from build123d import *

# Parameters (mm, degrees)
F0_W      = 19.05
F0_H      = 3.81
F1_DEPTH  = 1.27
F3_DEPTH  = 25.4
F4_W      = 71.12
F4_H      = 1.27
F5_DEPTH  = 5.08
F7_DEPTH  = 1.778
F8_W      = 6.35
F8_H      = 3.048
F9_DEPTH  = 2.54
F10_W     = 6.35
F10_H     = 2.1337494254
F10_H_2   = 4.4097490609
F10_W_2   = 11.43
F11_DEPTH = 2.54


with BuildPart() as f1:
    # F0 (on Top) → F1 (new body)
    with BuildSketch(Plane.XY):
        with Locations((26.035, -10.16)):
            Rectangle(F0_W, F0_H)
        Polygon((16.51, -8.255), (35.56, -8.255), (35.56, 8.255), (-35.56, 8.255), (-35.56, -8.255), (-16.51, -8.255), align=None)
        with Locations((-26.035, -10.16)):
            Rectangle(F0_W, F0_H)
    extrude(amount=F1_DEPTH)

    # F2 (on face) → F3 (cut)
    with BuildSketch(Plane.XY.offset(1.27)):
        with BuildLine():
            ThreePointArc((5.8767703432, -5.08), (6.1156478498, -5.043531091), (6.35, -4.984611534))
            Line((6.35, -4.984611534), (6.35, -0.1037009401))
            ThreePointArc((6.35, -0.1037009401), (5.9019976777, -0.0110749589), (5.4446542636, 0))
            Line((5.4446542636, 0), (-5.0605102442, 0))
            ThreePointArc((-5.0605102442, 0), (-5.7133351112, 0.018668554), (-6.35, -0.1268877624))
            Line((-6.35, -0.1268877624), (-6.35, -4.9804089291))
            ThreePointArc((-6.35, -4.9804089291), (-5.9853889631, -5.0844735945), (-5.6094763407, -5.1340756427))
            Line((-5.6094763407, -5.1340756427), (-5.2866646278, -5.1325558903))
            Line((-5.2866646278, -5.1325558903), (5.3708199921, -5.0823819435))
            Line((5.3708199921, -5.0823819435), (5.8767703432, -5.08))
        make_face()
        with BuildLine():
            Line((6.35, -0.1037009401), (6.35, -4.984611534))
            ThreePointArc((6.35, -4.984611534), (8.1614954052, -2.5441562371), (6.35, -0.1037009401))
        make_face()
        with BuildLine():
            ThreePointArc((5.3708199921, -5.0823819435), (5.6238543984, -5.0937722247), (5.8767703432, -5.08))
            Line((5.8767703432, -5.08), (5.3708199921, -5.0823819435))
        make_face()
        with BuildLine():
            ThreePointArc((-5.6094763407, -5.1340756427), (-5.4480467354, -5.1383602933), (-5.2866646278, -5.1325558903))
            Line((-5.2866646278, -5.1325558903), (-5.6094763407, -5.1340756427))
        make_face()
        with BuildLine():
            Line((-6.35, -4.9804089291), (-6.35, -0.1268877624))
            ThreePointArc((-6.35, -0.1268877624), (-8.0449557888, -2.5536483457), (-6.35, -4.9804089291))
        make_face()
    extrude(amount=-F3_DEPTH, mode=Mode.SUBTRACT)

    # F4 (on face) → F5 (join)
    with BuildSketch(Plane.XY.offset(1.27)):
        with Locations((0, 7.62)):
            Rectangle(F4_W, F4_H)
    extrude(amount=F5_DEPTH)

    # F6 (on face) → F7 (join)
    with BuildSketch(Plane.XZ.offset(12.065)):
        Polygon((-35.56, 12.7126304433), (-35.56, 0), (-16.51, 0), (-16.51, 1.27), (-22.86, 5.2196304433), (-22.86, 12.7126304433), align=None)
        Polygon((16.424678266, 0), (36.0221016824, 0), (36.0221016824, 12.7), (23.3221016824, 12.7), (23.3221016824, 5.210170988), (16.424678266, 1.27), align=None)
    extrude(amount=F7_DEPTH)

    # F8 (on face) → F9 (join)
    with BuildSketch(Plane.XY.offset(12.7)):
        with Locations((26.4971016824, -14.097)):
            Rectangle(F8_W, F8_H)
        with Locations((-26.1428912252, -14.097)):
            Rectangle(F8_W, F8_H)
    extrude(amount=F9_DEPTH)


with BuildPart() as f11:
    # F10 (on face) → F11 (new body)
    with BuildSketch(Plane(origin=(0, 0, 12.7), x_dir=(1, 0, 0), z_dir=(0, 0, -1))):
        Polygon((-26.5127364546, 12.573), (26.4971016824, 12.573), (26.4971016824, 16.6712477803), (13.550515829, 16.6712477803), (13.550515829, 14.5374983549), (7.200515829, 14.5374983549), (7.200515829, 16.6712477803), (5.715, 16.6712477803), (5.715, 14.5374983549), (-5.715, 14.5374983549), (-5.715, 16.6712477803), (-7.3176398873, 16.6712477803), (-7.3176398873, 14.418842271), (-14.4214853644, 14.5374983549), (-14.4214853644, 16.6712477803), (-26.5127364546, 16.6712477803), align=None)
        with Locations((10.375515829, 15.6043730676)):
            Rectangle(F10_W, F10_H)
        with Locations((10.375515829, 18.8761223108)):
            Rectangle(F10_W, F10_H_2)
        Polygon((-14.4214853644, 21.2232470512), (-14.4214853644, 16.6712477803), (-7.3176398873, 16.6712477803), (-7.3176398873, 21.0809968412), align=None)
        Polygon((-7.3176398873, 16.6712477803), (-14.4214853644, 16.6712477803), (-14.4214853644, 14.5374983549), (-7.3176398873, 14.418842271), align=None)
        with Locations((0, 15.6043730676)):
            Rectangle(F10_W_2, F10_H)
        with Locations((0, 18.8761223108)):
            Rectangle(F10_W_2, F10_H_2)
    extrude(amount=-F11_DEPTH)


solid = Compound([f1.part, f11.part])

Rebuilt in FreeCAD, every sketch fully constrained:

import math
import FreeCAD as App
import Part
import Sketcher
from FreeCAD import Vector
Q = App.Units.Quantity


def add_polygon(sketch, points):
    """Adds a closed chain of lines whose ends are joined by coincident constraints."""
    first, n = sketch.GeometryCount, len(points)
    for a, b in zip(points, points[1:] + points[:1]):
        sketch.addGeometry(Part.LineSegment(App.Vector(*a, 0), App.Vector(*b, 0)), False)
    for i in range(n):
        sketch.addConstraint(Sketcher.Constraint("Coincident", first + i, 2, first + (i + 1) % n, 1))

doc = App.newDocument("Part")
body = doc.addObject("PartDesign::Body", "Body")

sketch1 = body.newObject("Sketcher::SketchObject", "Sketch")
sketch1.AttachmentSupport = (doc.getObject("XY_Plane"), [""])
sketch1.MapMode = "FlatFace"
add_polygon(sketch1, [(16.5, -8.3), (16.5, -12.1), (35.6, -12.1), (35.6, 8.3), (-35.6, 8.3), (-35.6, -12.1), (-16.5, -12.1), (-16.5, -8.3)])
sketch1.addConstraint(Sketcher.Constraint("Vertical", 0))
sketch1.addConstraint(Sketcher.Constraint("Horizontal", 1))
sketch1.addConstraint(Sketcher.Constraint("Vertical", 2))
sketch1.addConstraint(Sketcher.Constraint("Horizontal", 3))
sketch1.addConstraint(Sketcher.Constraint("Vertical", 4))
sketch1.addConstraint(Sketcher.Constraint("Horizontal", 5))
sketch1.addConstraint(Sketcher.Constraint("Vertical", 6))
sketch1.addConstraint(Sketcher.Constraint("Horizontal", 7))
sketch1.addConstraint(Sketcher.Constraint("Symmetric", 1, 2, 4, 2, -2))
sketch1.addConstraint(Sketcher.Constraint("Equal", 1, 5))
sketch1.addConstraint(Sketcher.Constraint("DistanceX", 3, 2, 3, 1, Q("2.8 in")))
sketch1.addConstraint(Sketcher.Constraint("DistanceX", 7, 1, 7, 2, Q("1.3 in")))
sketch1.addConstraint(Sketcher.Constraint("DistanceY", 2, 1, 2, 2, Q("0.8 in")))
sketch1.addConstraint(Sketcher.Constraint("DistanceY", 0, 2, 0, 1, Q("0.15 in")))
sketch1.addConstraint(Sketcher.Constraint("DistanceY", 0, 2, -1, 1, Q("0.475 in")))
pad1 = body.newObject("PartDesign::Pad", "Pad")
pad1.Profile = sketch1
pad1.Length = Q("0.05 in")

sketch2 = body.newObject("Sketcher::SketchObject", "Sketch001")
sketch2.AttachmentSupport = (doc.getObject("XY_Plane"), [""])
sketch2.MapMode = "FlatFace"
sketch2.AttachmentOffset = App.Placement(Vector(0, 0, 0.05 * 25.4), App.Rotation())
sketch2.addGeometry(Part.ArcOfCircle(Part.Circle(Vector(5.61, -2.54, 0), Vector(0, 0, 1), 2.55), math.radians(-84.04), math.radians(-73.17)), False)
sketch2.addGeometry(Part.ArcOfCircle(Part.Circle(Vector(5.61, -2.54, 0), Vector(0, 0, 1), 2.55), math.radians(-73), math.radians(73)), False)
sketch2.addGeometry(Part.ArcOfCircle(Part.Circle(Vector(5.61, -2.54, 0), Vector(0, 0, 1), 2.55), math.radians(73), math.radians(94)), False)
sketch2.addGeometry(Part.LineSegment(Vector(5.44, 0, 0), Vector(-5.06, 0, 0)), False)
sketch2.addGeometry(Part.ArcOfCircle(Part.Circle(Vector(-5.46, -2.55, 0), Vector(0, 0, 1), 2.58), math.radians(81), math.radians(110)), False)
sketch2.addGeometry(Part.ArcOfCircle(Part.Circle(Vector(-5.46, -2.55, 0), Vector(0, 0, 1), 2.58), math.radians(110), math.radians(250)), False)
sketch2.addGeometry(Part.ArcOfCircle(Part.Circle(Vector(-5.46, -2.55, 0), Vector(0, 0, 1), 2.58), math.radians(-110.14), math.radians(-93.31)), False)
sketch2.addGeometry(Part.ArcOfCircle(Part.Circle(Vector(-5.46, -2.55, 0), Vector(0, 0, 1), 2.58), math.radians(-93.31), math.radians(-86.15)), False)
sketch2.addGeometry(Part.LineSegment(Vector(-5.29, -5.13, 0), Vector(5.37, -5.08, 0)), False)
sketch2.addGeometry(Part.ArcOfCircle(Part.Circle(Vector(5.61, -2.54, 0), Vector(0, 0, 1), 2.55), math.radians(-95.42), math.radians(-84.04)), False)
sketch2.addConstraint(Sketcher.Constraint("Tangent", 0, 2, 1, 1))
sketch2.addConstraint(Sketcher.Constraint("Tangent", 1, 2, 2, 1))
sketch2.addConstraint(Sketcher.Constraint("Coincident", 2, 2, 3, 1))
sketch2.addConstraint(Sketcher.Constraint("Coincident", 3, 2, 4, 1))
sketch2.addConstraint(Sketcher.Constraint("Tangent", 4, 2, 5, 1))
sketch2.addConstraint(Sketcher.Constraint("Tangent", 5, 2, 6, 1))
sketch2.addConstraint(Sketcher.Constraint("Tangent", 6, 2, 7, 1))
sketch2.addConstraint(Sketcher.Constraint("Coincident", 7, 2, 8, 1))
sketch2.addConstraint(Sketcher.Constraint("Coincident", 8, 2, 9, 1))
sketch2.addConstraint(Sketcher.Constraint("Tangent", 9, 2, 0, 1))
sketch2.addConstraint(Sketcher.Constraint("Horizontal", 3))
sketch2.addConstraint(Sketcher.Constraint("Coincident", 2, 3, 0, 3))
sketch2.addConstraint(Sketcher.Constraint("Coincident", 6, 3, 4, 3))
sketch2.addConstraint(Sketcher.Constraint("Equal", 6, 7))
sketch2.addConstraint(Sketcher.Constraint("Equal", 2, 9))
sketch2.addConstraint(Sketcher.Constraint("PointOnObject", 2, 2, -1))
sketch2.addConstraint(Sketcher.Constraint("Vertical", 0, 2, 1, 2))
sketch2.addConstraint(Sketcher.Constraint("Vertical", 4, 2, 5, 2))
sketch2.addConstraint(Sketcher.Constraint("DistanceY", 9, 2, -1, 1, Q("0.2 in")))
sketch2.addConstraint(Sketcher.Constraint("DistanceX", -1, 1, 0, 2, Q("0.25 in")))
sketch2.addConstraint(Sketcher.Constraint("DistanceX", 4, 2, -1, 1, Q("0.25 in")))
sketch2.addConstraint(Sketcher.Constraint("Radius", 4, Q("2.584741 mm")))
sketch2.addConstraint(Sketcher.Constraint("Radius", 0, Q("2.549644 mm")))
sketch2.addConstraint(Sketcher.Constraint("DistanceY", 1, 2, -1, 1, Q("0.103701 mm")))
sketch2.addConstraint(Sketcher.Constraint("DistanceX", 3, 2, 3, 1, Q("10.505165 mm")))
sketch2.addConstraint(Sketcher.Constraint("DistanceX", -1, 1, 0, 3, Q("5.611851 mm")))
sketch2.addConstraint(Sketcher.Constraint("DistanceY", 4, 3, -1, 1, Q("2.553648 mm")))
sketch2.addConstraint(Sketcher.Constraint("DistanceX", -1, 1, 8, 2, Q("5.37082 mm")))
sketch2.addConstraint(Sketcher.Constraint("DistanceX", 6, 2, 6, 3, Q("0.149261 mm")))
sketch2.addConstraint(Sketcher.Constraint("DistanceX", 6, 2, 7, 2, Q("0.322812 mm")))
pocket1 = body.newObject("PartDesign::Pocket", "Pocket")
pocket1.Profile = sketch2
pocket1.Length = Q("1 in")

sketch3 = body.newObject("Sketcher::SketchObject", "Sketch002")
sketch3.AttachmentSupport = (doc.getObject("XY_Plane"), [""])
sketch3.MapMode = "FlatFace"
sketch3.AttachmentOffset = App.Placement(Vector(0, 0, 0.05 * 25.4), App.Rotation())
add_polygon(sketch3, [(-35.6, 8.3), (-35.6, 7), (35.6, 7), (35.6, 8.3)])
sketch3.addConstraint(Sketcher.Constraint("Vertical", 0))
sketch3.addConstraint(Sketcher.Constraint("Horizontal", 1))
sketch3.addConstraint(Sketcher.Constraint("Vertical", 2))
sketch3.addConstraint(Sketcher.Constraint("Horizontal", 3))
sketch3.addConstraint(Sketcher.Constraint("DistanceX", 1, 1, 1, 2, Q("2.8 in")))
sketch3.addConstraint(Sketcher.Constraint("DistanceY", 0, 2, 0, 1, Q("0.05 in")))
sketch3.addConstraint(Sketcher.Constraint("DistanceX", 0, 2, -1, 1, Q("1.4 in")))
sketch3.addConstraint(Sketcher.Constraint("DistanceY", -1, 1, 0, 2, Q("0.275 in")))
pad2 = body.newObject("PartDesign::Pad", "Pad001")
pad2.Profile = sketch3
pad2.Length = Q("0.2 in")

sketch4 = body.newObject("Sketcher::SketchObject", "Sketch003")
sketch4.AttachmentSupport = (doc.getObject("XZ_Plane"), [""])
sketch4.MapMode = "FlatFace"
sketch4.AttachmentOffset = App.Placement(Vector(0, 0, 0.475 * 25.4), App.Rotation())
add_polygon(sketch4, [(-35.6, 12.7), (-35.6, 0), (-16.5, 0), (-16.5, 1.3), (-22.9, 5.2), (-22.9, 12.7)])
add_polygon(sketch4, [(16.4, 0), (36, 0), (36, 12.7), (23.3, 12.7), (23.3, 5.2), (16.4, 1.3)])
sketch4.addConstraint(Sketcher.Constraint("Vertical", 0))
sketch4.addConstraint(Sketcher.Constraint("Horizontal", 1))
sketch4.addConstraint(Sketcher.Constraint("Vertical", 2))
sketch4.addConstraint(Sketcher.Constraint("Vertical", 4))
sketch4.addConstraint(Sketcher.Constraint("Horizontal", 5))
sketch4.addConstraint(Sketcher.Constraint("Horizontal", 6))
sketch4.addConstraint(Sketcher.Constraint("Vertical", 7))
sketch4.addConstraint(Sketcher.Constraint("Horizontal", 8))
sketch4.addConstraint(Sketcher.Constraint("Vertical", 9))
sketch4.addConstraint(Sketcher.Constraint("Vertical", 11))
sketch4.addConstraint(Sketcher.Constraint("PointOnObject", 0, 2, -1))
sketch4.addConstraint(Sketcher.Constraint("PointOnObject", 6, 2, -1))
sketch4.addConstraint(Sketcher.Constraint("Horizontal", 2, 2, 10, 2))
sketch4.addConstraint(Sketcher.Constraint("Equal", 5, 8))
sketch4.addConstraint(Sketcher.Constraint("Equal", 8, 7))
sketch4.addConstraint(Sketcher.Constraint("DistanceX", 5, 2, 5, 1, Q("0.5 in")))
sketch4.addConstraint(Sketcher.Constraint("DistanceX", 1, 1, 1, 2, Q("0.75 in")))
sketch4.addConstraint(Sketcher.Constraint("DistanceY", 2, 1, 2, 2, Q("0.05 in")))
sketch4.addConstraint(Sketcher.Constraint("DistanceX", 0, 2, -1, 1, Q("1.4 in")))
sketch4.addConstraint(Sketcher.Constraint("DistanceY", 4, 1, 4, 2, Q("0.295 in")))
sketch4.addConstraint(Sketcher.Constraint("DistanceY", 0, 2, 0, 1, Q("12.71263 mm")))
sketch4.addConstraint(Sketcher.Constraint("DistanceY", 9, 2, 9, 1, Q("7.489829 mm")))
sketch4.addConstraint(Sketcher.Constraint("DistanceX", -1, 1, 6, 2, Q("36.022102 mm")))
sketch4.addConstraint(Sketcher.Constraint("DistanceX", 6, 1, 6, 2, Q("19.597423 mm")))
pad3 = body.newObject("PartDesign::Pad", "Pad002")
pad3.Profile = sketch4
pad3.Length = Q("0.07 in")

sketch5 = body.newObject("Sketcher::SketchObject", "Sketch004")
sketch5.AttachmentSupport = (doc.getObject("XY_Plane"), [""])
sketch5.MapMode = "FlatFace"
sketch5.AttachmentOffset = App.Placement(Vector(0, 0, 0.5 * 25.4), App.Rotation())
add_polygon(sketch5, [(23.3, -12.6), (23.3, -15.6), (29.7, -15.6), (29.7, -12.6)])
add_polygon(sketch5, [(-29.3, -12.6), (-29.3, -15.6), (-23, -15.6), (-23, -12.6)])
sketch5.addConstraint(Sketcher.Constraint("Vertical", 0))
sketch5.addConstraint(Sketcher.Constraint("Horizontal", 1))
sketch5.addConstraint(Sketcher.Constraint("Vertical", 2))
sketch5.addConstraint(Sketcher.Constraint("Horizontal", 3))
sketch5.addConstraint(Sketcher.Constraint("Vertical", 4))
sketch5.addConstraint(Sketcher.Constraint("Horizontal", 5))
sketch5.addConstraint(Sketcher.Constraint("Vertical", 6))
sketch5.addConstraint(Sketcher.Constraint("Horizontal", 7))
sketch5.addConstraint(Sketcher.Constraint("Horizontal", 1, 2, 4, 2))
sketch5.addConstraint(Sketcher.Constraint("Horizontal", 3, 2, 6, 2))
sketch5.addConstraint(Sketcher.Constraint("Equal", 3, 5))
sketch5.addConstraint(Sketcher.Constraint("DistanceX", 1, 1, 1, 2, Q("0.25 in")))
sketch5.addConstraint(Sketcher.Constraint("DistanceY", 0, 2, 0, 1, Q("0.12 in")))
sketch5.addConstraint(Sketcher.Constraint("DistanceY", 0, 2, -1, 1, Q("0.615 in")))
sketch5.addConstraint(Sketcher.Constraint("DistanceX", -1, 1, 0, 2, Q("23.322102 mm")))
sketch5.addConstraint(Sketcher.Constraint("DistanceX", 4, 2, -1, 1, Q("29.317891 mm")))
pad4 = body.newObject("PartDesign::Pad", "Pad003")
pad4.Profile = sketch5
pad4.Length = Q("0.1 in")
body2 = doc.addObject("PartDesign::Body", "Body001")

sketch6 = body2.newObject("Sketcher::SketchObject", "Sketch005")
sketch6.AttachmentSupport = (doc.getObject("XY_Plane001"), [""])
sketch6.MapMode = "FlatFace"
sketch6.AttachmentOffset = App.Placement(Vector(0, 0, 0.5 * 25.4), App.Rotation())
add_polygon(sketch6, [(-26.5, -12.6), (26.5, -12.6), (26.5, -16.7), (13.6, -16.7), (13.6, -21.1), (7.2, -21.1), (7.2, -16.7), (5.7, -16.7), (5.7, -21.1), (-5.7, -21.1), (-5.7, -16.7), (-7.3, -16.7), (-7.3, -21.1), (-14.4, -21.2), (-14.4, -16.7), (-26.5, -16.7)])
sketch6.addConstraint(Sketcher.Constraint("Horizontal", 0))
sketch6.addConstraint(Sketcher.Constraint("Vertical", 1))
sketch6.addConstraint(Sketcher.Constraint("Horizontal", 2))
sketch6.addConstraint(Sketcher.Constraint("Vertical", 3))
sketch6.addConstraint(Sketcher.Constraint("Horizontal", 4))
sketch6.addConstraint(Sketcher.Constraint("Vertical", 5))
sketch6.addConstraint(Sketcher.Constraint("Horizontal", 6))
sketch6.addConstraint(Sketcher.Constraint("Vertical", 7))
sketch6.addConstraint(Sketcher.Constraint("Horizontal", 8))
sketch6.addConstraint(Sketcher.Constraint("Vertical", 9))
sketch6.addConstraint(Sketcher.Constraint("Horizontal", 10))
sketch6.addConstraint(Sketcher.Constraint("Vertical", 11))
sketch6.addConstraint(Sketcher.Constraint("Vertical", 13))
sketch6.addConstraint(Sketcher.Constraint("Horizontal", 14))
sketch6.addConstraint(Sketcher.Constraint("Vertical", 15))
sketch6.addConstraint(Sketcher.Constraint("Symmetric", 6, 2, 9, 2, -2))
sketch6.addConstraint(Sketcher.Constraint("Horizontal", 2, 2, 5, 2))
sketch6.addConstraint(Sketcher.Constraint("Horizontal", 4, 2, 7, 2))
sketch6.addConstraint(Sketcher.Constraint("Horizontal", 8, 2, 11, 2))
sketch6.addConstraint(Sketcher.Constraint("Horizontal", 10, 2, 13, 2))
sketch6.addConstraint(Sketcher.Constraint("DistanceX", 4, 2, 4, 1, Q("0.25 in")))
sketch6.addConstraint(Sketcher.Constraint("DistanceX", 8, 2, 8, 1, Q("0.45 in")))
sketch6.addConstraint(Sketcher.Constraint("DistanceY", 0, 2, -1, 1, Q("0.495 in")))
sketch6.addConstraint(Sketcher.Constraint("DistanceY", 13, 1, 13, 2, Q("4.551999 mm")))
sketch6.addConstraint(Sketcher.Constraint("DistanceX", 0, 1, 0, 2, Q("53.009838 mm")))
sketch6.addConstraint(Sketcher.Constraint("DistanceX", 10, 2, 10, 1, Q("1.60264 mm")))
sketch6.addConstraint(Sketcher.Constraint("DistanceX", 14, 2, 14, 1, Q("12.091251 mm")))
sketch6.addConstraint(Sketcher.Constraint("DistanceY", 3, 2, 3, 1, Q("4.409749 mm")))
sketch6.addConstraint(Sketcher.Constraint("DistanceX", -1, 1, 0, 2, Q("26.497102 mm")))
sketch6.addConstraint(Sketcher.Constraint("DistanceX", 2, 2, 2, 1, Q("12.946586 mm")))
sketch6.addConstraint(Sketcher.Constraint("DistanceY", 1, 2, 1, 1, Q("4.098248 mm")))
pad5 = body2.newObject("PartDesign::Pad", "Pad004")
pad5.Profile = sketch6
pad5.Length = Q("0.1 in")

doc.recompute()
